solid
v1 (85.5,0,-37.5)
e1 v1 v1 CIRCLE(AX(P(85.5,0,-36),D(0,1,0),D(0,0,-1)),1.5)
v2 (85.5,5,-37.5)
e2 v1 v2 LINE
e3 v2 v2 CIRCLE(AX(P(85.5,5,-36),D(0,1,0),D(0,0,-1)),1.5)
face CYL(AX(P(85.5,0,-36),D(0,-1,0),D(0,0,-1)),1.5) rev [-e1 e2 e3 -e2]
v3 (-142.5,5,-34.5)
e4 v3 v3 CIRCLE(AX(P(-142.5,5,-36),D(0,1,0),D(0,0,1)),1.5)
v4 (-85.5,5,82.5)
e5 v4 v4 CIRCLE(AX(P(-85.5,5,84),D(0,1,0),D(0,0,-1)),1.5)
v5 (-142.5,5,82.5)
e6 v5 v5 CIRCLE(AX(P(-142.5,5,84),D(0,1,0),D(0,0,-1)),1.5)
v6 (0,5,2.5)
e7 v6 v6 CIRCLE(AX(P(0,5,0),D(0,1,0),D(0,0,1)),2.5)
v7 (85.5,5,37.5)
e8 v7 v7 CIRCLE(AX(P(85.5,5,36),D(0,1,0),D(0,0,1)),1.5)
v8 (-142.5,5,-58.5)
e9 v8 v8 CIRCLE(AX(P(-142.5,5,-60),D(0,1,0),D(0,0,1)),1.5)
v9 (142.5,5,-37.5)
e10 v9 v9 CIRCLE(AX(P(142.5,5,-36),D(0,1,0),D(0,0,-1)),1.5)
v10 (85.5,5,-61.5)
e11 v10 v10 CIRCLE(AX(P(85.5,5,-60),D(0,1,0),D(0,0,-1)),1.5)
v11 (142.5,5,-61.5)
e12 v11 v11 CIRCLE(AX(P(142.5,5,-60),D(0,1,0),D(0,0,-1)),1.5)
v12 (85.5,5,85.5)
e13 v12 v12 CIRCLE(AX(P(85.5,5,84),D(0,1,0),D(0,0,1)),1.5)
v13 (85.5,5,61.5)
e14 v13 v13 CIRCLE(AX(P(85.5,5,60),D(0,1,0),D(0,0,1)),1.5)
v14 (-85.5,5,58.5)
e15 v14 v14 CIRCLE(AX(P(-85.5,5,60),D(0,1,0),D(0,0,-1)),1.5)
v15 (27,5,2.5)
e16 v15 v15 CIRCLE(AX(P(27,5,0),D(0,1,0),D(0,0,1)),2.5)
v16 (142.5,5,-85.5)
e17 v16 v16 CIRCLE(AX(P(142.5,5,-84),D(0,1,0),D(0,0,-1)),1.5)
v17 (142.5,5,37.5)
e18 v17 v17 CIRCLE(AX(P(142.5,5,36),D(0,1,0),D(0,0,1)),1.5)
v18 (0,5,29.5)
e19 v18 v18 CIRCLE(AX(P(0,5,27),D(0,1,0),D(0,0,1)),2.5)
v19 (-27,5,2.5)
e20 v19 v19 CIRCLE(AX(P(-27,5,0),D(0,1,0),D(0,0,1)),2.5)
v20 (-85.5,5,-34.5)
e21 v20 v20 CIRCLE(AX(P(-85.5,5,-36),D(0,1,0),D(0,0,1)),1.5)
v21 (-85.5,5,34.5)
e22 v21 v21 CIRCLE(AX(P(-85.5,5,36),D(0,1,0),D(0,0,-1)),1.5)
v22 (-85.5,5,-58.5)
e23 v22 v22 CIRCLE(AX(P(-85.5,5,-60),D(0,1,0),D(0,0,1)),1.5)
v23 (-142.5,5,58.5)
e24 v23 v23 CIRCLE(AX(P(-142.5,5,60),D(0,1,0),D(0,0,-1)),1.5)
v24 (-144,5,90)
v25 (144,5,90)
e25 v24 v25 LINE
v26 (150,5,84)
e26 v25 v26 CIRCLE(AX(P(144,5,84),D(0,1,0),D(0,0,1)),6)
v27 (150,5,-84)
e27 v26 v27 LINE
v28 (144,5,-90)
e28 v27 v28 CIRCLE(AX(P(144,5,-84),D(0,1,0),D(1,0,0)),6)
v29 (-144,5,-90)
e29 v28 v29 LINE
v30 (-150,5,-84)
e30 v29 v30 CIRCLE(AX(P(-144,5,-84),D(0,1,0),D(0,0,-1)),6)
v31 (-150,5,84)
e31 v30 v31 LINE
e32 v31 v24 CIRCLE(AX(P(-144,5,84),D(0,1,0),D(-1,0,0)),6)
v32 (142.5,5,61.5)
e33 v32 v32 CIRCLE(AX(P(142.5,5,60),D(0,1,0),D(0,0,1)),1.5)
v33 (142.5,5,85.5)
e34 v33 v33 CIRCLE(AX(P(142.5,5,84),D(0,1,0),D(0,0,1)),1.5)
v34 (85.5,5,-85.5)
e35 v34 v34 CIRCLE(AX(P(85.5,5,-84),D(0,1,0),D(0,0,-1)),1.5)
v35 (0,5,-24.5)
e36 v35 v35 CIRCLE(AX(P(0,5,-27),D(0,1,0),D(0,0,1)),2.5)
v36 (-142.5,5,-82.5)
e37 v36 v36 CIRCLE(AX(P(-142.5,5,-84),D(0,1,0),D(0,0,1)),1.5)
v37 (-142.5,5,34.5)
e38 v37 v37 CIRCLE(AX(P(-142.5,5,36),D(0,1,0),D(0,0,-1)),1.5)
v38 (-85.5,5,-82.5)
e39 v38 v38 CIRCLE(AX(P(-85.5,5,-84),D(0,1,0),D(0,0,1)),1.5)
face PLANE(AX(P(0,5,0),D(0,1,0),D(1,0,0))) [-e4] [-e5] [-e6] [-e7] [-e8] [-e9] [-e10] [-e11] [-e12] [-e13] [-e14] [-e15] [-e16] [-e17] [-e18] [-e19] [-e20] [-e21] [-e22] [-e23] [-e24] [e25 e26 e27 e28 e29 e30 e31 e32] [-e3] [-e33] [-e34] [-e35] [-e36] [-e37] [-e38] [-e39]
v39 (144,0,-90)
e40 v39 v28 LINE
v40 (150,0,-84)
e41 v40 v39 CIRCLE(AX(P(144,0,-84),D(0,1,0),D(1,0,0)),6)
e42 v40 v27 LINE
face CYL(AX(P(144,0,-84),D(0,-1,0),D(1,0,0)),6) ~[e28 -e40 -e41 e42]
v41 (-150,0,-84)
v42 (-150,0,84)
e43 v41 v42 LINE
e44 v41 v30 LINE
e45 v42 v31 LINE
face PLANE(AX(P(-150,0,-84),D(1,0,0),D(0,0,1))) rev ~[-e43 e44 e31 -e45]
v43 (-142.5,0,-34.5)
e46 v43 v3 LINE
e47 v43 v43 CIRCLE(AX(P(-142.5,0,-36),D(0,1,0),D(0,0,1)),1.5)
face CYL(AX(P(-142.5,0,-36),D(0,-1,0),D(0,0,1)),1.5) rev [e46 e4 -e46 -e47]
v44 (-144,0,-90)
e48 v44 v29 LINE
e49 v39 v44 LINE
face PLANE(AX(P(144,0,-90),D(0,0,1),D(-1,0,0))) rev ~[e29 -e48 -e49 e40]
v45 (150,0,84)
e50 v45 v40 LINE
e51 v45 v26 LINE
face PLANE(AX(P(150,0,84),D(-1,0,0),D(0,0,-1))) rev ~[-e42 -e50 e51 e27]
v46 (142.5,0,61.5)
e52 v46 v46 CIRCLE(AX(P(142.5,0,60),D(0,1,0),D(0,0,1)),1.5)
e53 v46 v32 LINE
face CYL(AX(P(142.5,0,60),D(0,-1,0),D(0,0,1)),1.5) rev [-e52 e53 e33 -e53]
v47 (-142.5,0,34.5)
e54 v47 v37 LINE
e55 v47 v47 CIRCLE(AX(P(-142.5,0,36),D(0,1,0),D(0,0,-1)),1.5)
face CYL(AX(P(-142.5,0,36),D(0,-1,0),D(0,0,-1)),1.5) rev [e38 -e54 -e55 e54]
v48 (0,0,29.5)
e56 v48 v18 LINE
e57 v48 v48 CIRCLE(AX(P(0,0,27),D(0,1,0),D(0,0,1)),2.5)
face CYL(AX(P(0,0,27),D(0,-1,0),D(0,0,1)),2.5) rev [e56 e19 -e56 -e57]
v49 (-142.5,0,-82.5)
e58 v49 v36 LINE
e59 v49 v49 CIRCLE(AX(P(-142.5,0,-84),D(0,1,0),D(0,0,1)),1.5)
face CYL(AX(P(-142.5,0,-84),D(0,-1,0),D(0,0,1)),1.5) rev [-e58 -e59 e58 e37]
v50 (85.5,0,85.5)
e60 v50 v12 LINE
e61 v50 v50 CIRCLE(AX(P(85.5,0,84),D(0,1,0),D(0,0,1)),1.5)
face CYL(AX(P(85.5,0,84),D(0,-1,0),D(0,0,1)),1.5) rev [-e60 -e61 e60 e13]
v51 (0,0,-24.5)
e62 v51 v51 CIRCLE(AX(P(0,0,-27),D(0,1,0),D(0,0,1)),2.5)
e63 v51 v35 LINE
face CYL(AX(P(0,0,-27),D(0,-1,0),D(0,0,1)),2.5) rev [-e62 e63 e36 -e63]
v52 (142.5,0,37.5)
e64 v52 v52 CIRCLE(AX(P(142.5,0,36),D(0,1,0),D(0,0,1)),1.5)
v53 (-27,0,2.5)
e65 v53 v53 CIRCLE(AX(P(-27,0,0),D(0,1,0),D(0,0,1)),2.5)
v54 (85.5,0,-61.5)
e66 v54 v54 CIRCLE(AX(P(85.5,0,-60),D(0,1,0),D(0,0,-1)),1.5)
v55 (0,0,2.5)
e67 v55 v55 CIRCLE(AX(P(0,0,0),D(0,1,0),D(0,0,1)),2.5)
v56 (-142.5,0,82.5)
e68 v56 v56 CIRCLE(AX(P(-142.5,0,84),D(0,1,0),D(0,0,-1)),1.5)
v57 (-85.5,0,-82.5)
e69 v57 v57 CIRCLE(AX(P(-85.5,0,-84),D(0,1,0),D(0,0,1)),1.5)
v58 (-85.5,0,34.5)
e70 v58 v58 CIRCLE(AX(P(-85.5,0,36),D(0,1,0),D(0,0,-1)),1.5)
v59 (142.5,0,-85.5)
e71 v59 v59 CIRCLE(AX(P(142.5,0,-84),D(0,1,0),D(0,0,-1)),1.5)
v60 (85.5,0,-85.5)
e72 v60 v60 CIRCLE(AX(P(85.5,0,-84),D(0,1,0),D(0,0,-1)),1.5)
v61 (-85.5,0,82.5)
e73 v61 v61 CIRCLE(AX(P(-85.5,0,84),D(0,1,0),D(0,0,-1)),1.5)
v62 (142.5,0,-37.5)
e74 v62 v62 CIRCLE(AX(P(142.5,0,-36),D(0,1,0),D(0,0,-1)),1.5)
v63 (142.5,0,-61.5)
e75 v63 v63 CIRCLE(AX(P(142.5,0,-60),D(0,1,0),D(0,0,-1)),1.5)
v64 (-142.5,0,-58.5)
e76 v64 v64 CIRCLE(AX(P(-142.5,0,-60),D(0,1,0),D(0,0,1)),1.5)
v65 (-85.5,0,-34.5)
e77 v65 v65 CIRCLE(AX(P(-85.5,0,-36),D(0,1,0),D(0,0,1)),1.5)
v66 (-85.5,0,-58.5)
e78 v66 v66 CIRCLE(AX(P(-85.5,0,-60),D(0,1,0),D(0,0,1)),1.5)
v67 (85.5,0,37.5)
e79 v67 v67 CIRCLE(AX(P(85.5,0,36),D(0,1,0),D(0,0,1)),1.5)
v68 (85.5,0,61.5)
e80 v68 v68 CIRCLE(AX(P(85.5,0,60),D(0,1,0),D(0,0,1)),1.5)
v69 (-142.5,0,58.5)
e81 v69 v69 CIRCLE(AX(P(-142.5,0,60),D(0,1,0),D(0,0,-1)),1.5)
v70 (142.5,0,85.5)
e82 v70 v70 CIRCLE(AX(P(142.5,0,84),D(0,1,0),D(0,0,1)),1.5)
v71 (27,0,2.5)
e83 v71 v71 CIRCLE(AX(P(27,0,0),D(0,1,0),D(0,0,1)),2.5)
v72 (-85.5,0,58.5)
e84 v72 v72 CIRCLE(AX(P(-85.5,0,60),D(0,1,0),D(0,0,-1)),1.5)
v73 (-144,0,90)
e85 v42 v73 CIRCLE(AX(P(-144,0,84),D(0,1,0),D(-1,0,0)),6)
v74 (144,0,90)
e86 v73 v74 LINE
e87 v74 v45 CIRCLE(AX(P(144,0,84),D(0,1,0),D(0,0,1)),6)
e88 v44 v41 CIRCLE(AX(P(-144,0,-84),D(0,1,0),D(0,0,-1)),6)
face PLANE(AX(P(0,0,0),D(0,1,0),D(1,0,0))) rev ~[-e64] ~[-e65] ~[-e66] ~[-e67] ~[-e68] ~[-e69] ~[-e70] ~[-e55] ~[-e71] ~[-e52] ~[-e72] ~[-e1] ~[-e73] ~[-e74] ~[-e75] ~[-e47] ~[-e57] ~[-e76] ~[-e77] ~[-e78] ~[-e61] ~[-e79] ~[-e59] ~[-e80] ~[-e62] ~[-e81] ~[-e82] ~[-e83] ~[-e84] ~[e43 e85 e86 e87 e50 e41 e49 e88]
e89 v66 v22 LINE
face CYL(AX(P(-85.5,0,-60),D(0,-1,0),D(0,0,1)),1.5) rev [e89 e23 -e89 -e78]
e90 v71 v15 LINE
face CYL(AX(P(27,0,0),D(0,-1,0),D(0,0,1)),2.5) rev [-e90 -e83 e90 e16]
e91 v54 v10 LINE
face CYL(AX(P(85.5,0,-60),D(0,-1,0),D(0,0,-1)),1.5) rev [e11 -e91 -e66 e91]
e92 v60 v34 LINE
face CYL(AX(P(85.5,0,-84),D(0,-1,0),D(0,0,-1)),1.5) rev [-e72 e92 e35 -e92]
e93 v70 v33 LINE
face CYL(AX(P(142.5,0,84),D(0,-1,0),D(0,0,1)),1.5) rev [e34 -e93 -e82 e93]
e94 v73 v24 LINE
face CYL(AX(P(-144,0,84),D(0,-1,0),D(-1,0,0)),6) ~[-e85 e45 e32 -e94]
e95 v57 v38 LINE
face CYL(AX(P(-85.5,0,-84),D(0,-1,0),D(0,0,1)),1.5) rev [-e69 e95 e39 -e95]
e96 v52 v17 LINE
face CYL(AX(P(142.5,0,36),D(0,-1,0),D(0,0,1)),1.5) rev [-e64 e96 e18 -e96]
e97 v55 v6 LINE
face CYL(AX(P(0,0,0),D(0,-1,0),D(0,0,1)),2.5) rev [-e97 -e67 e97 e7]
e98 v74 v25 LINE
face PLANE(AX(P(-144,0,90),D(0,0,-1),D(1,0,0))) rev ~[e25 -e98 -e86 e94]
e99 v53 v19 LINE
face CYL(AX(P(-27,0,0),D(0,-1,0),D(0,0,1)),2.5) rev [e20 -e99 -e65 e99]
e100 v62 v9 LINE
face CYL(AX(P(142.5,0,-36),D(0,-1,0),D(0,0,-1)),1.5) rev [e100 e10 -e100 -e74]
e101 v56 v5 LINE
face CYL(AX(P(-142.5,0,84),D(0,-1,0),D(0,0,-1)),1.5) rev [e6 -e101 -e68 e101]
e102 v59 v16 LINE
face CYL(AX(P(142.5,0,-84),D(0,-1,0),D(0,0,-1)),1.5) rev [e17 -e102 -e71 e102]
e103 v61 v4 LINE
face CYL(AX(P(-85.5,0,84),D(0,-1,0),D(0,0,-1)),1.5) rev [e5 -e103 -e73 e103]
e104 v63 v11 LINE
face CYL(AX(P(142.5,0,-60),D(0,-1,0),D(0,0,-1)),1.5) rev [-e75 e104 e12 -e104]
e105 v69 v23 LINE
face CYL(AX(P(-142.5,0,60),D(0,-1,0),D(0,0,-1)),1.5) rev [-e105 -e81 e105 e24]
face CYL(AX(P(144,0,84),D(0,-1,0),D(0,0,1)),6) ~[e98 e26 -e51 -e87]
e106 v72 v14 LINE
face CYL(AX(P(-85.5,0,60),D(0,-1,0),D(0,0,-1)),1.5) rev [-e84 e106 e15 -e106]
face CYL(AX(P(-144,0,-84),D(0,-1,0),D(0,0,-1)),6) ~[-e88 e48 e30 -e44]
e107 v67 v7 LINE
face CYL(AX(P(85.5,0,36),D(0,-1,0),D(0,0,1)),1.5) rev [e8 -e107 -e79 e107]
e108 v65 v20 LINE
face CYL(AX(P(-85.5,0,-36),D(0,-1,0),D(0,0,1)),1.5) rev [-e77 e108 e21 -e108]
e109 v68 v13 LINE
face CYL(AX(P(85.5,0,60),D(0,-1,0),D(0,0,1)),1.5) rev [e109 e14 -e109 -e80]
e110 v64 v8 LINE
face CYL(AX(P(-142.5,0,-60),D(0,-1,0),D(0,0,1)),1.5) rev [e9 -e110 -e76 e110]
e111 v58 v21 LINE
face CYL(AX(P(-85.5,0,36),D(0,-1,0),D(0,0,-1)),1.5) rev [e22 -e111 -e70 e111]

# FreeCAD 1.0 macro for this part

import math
import FreeCAD as App
import Part
import Sketcher
Q = App.Units.Quantity

doc = App.newDocument("Part")
params = doc.addObject("Spreadsheet::Sheet", "Params")
for row, (alias, value) in enumerate([
    ("sketch1_diameter", "3 mm"),
    ("sketch1_diameter2", "5 mm"),
    ("sketch1_radius", "6 mm"),
    ("sketch1_width", "288 mm"),
    ("sketch1_height", "168 mm"),
    ("pad1_length", "5 mm"),
], start=1):
    params.set(f"A{row}", alias)
    params.set(f"B{row}", "=" + value)
    params.setAlias(f"B{row}", alias)

body = doc.addObject("PartDesign::Body", "Body")

sketch1 = body.newObject("Sketcher::SketchObject", "Sketch")
sketch1.AttachmentSupport = (doc.getObject("XZ_Plane"), [""])
sketch1.MapMode = "FlatFace"
sketch1.addGeometry([
    Part.LineSegment(App.Vector(-144, 90, 0), App.Vector(144, 90, 0)),
    Part.ArcOfCircle(Part.Circle(App.Vector(144, 84, 0), App.Vector(0, 0, 1), 6), math.radians(0), math.radians(90)),
    Part.LineSegment(App.Vector(150, 84, 0), App.Vector(150, -84, 0)),
    Part.ArcOfCircle(Part.Circle(App.Vector(144, -84, 0), App.Vector(0, 0, 1), 6), math.radians(-90), math.radians(0)),
    Part.LineSegment(App.Vector(144, -90, 0), App.Vector(-144, -90, 0)),
    Part.ArcOfCircle(Part.Circle(App.Vector(-144, -84, 0), App.Vector(0, 0, 1), 6), math.radians(180), math.radians(270)),
    Part.LineSegment(App.Vector(-150, -84, 0), App.Vector(-150, 84, 0)),
    Part.ArcOfCircle(Part.Circle(App.Vector(-144, 84, 0), App.Vector(0, 0, 1), 6), math.radians(90), math.radians(180)),
    Part.Circle(App.Vector(-142.5, 84, 0), App.Vector(0, 0, 1), 1.5),
    Part.Circle(App.Vector(-85.5, 84, 0), App.Vector(0, 0, 1), 1.5),
    Part.Circle(App.Vector(-142.5, 60, 0), App.Vector(0, 0, 1), 1.5),
    Part.Circle(App.Vector(-85.5, 60, 0), App.Vector(0, 0, 1), 1.5),
    Part.Circle(App.Vector(-142.5, 36, 0), App.Vector(0, 0, 1), 1.5),
    Part.Circle(App.Vector(-85.5, 36, 0), App.Vector(0, 0, 1), 1.5),
    Part.Circle(App.Vector(85.5, 84, 0), App.Vector(0, 0, 1), 1.5),
    Part.Circle(App.Vector(142.5, 84, 0), App.Vector(0, 0, 1), 1.5),
    Part.Circle(App.Vector(85.5, 60, 0), App.Vector(0, 0, 1), 1.5),
    Part.Circle(App.Vector(142.5, 60, 0), App.Vector(0, 0, 1), 1.5),
    Part.Circle(App.Vector(0, 27, 0), App.Vector(0, 0, 1), 2.5),
    Part.Circle(App.Vector(85.5, 36, 0), App.Vector(0, 0, 1), 1.5),
    Part.Circle(App.Vector(142.5, 36, 0), App.Vector(0, 0, 1), 1.5),
    Part.Circle(App.Vector(-142.5, -36, 0), App.Vector(0, 0, 1), 1.5),
    Part.Circle(App.Vector(-85.5, -36, 0), App.Vector(0, 0, 1), 1.5),
    Part.Circle(App.Vector(-27, 0, 0), App.Vector(0, 0, 1), 2.5),
    Part.Circle(App.Vector(-142.5, -60, 0), App.Vector(0, 0, 1), 1.5),
    Part.Circle(App.Vector(-85.5, -60, 0), App.Vector(0, 0, 1), 1.5),
    Part.Circle(App.Vector(-142.5, -84, 0), App.Vector(0, 0, 1), 1.5),
    Part.Circle(App.Vector(-85.5, -84, 0), App.Vector(0, 0, 1), 1.5),
    Part.Circle(App.Vector(0, 0, 0), App.Vector(0, 0, 1), 2.5),
    Part.Circle(App.Vector(27, 0, 0), App.Vector(0, 0, 1), 2.5),
    Part.Circle(App.Vector(0, -27, 0), App.Vector(0, 0, 1), 2.5),
    Part.Circle(App.Vector(85.5, -36, 0), App.Vector(0, 0, 1), 1.5),
    Part.Circle(App.Vector(142.5, -36, 0), App.Vector(0, 0, 1), 1.5),
    Part.Circle(App.Vector(85.5, -60, 0), App.Vector(0, 0, 1), 1.5),
    Part.Circle(App.Vector(142.5, -60, 0), App.Vector(0, 0, 1), 1.5),
    Part.Circle(App.Vector(85.5, -84, 0), App.Vector(0, 0, 1), 1.5),
    Part.Circle(App.Vector(142.5, -84, 0), App.Vector(0, 0, 1), 1.5),
], False)
sketch1.addConstraint([
    Sketcher.Constraint("Tangent", 0, 2, 1, 2),
    Sketcher.Constraint("Tangent", 1, 1, 2, 1),
    Sketcher.Constraint("Tangent", 2, 2, 3, 2),
    Sketcher.Constraint("Tangent", 3, 1, 4, 1),
    Sketcher.Constraint("Tangent", 4, 2, 5, 2),
    Sketcher.Constraint("Tangent", 5, 1, 6, 1),
    Sketcher.Constraint("Tangent", 6, 2, 7, 2),
    Sketcher.Constraint("Tangent", 7, 1, 0, 1),
    Sketcher.Constraint("Horizontal", 0),
    Sketcher.Constraint("Vertical", 2),
    Sketcher.Constraint("Horizontal", 4),
    Sketcher.Constraint("Vertical", 6),
    Sketcher.Constraint("Coincident", 28, 3, -1, 1),
    Sketcher.Constraint("Equal", 1, 3),
    Sketcher.Constraint("Equal", 3, 5),
    Sketcher.Constraint("Equal", 5, 7),
    Sketcher.Constraint("Equal", 8, 9),
    Sketcher.Constraint("Equal", 9, 10),
    Sketcher.Constraint("Equal", 10, 11),
    Sketcher.Constraint("Equal", 11, 12),
    Sketcher.Constraint("Equal", 12, 13),
    Sketcher.Constraint("Equal", 13, 14),
    Sketcher.Constraint("Equal", 14, 15),
    Sketcher.Constraint("Equal", 15, 16),
    Sketcher.Constraint("Equal", 16, 17),
    Sketcher.Constraint("Equal", 17, 19),
    Sketcher.Constraint("Equal", 19, 20),
    Sketcher.Constraint("Equal", 20, 21),
    Sketcher.Constraint("Equal", 21, 22),
    Sketcher.Constraint("Equal", 18, 23),
    Sketcher.Constraint("Equal", 22, 24),
    Sketcher.Constraint("Equal", 24, 25),
    Sketcher.Constraint("Equal", 25, 26),
    Sketcher.Constraint("Equal", 26, 27),
    Sketcher.Constraint("Equal", 23, 28),
    Sketcher.Constraint("Equal", 28, 29),
    Sketcher.Constraint("Equal", 29, 30),
    Sketcher.Constraint("Equal", 27, 31),
    Sketcher.Constraint("Equal", 31, 32),
    Sketcher.Constraint("Equal", 32, 33),
    Sketcher.Constraint("Equal", 33, 34),
    Sketcher.Constraint("Equal", 34, 35),
    Sketcher.Constraint("Equal", 35, 36),
    Sketcher.Constraint("Symmetric", 1, 3, 5, 3, -1, 1),
    Sketcher.Constraint("Symmetric", 20, 3, 21, 3, -1, 1),
    Sketcher.Constraint("Symmetric", 19, 3, 22, 3, -1, 1),
    Sketcher.Constraint("Symmetric", 17, 3, 24, 3, -1, 1),
    Sketcher.Constraint("Symmetric", 16, 3, 25, 3, -1, 1),
    Sketcher.Constraint("Symmetric", 15, 3, 26, 3, -1, 1),
    Sketcher.Constraint("Symmetric", 14, 3, 27, 3, -1, 1),
    Sketcher.Constraint("Symmetric", 23, 3, 29, 3, -1, 1),
    Sketcher.Constraint("Symmetric", 18, 3, 30, 3, -1, 1),
    Sketcher.Constraint("Symmetric", 13, 3, 31, 3, -1, 1),
    Sketcher.Constraint("Symmetric", 12, 3, 32, 3, -1, 1),
    Sketcher.Constraint("Symmetric", 11, 3, 33, 3, -1, 1),
    Sketcher.Constraint("Symmetric", 10, 3, 34, 3, -1, 1),
    Sketcher.Constraint("Symmetric", 9, 3, 35, 3, -1, 1),
    Sketcher.Constraint("Symmetric", 8, 3, 36, 3, -1, 1),
    Sketcher.Constraint("Symmetric", 9, 3, 14, 3, -2),
    Sketcher.Constraint("Symmetric", 8, 3, 15, 3, -2),
    Sketcher.Constraint("Symmetric", 11, 3, 16, 3, -2),
    Sketcher.Constraint("Symmetric", 10, 3, 17, 3, -2),
    Sketcher.Constraint("Symmetric", 13, 3, 19, 3, -2),
    Sketcher.Constraint("Symmetric", 12, 3, 20, 3, -2),
    Sketcher.Constraint("PointOnObject", 18, 3, -2),
    Sketcher.Constraint("PointOnObject", 23, 3, -1),
    Sketcher.Constraint("Horizontal", 7, 3, 8, 3),
    Sketcher.Constraint("Horizontal", 8, 3, 9, 3),
    Sketcher.Constraint("Horizontal", 10, 3, 11, 3),
    Sketcher.Constraint("Horizontal", 12, 3, 13, 3),
    Sketcher.Constraint("Vertical", 8, 3, 10, 3),
    Sketcher.Constraint("Vertical", 9, 3, 11, 3),
    Sketcher.Constraint("Vertical", 10, 3, 12, 3),
    Sketcher.Constraint("Vertical", 11, 3, 13, 3),
    Sketcher.Constraint("Diameter", 8, Q("3 mm")),
    Sketcher.Constraint("Diameter", 18, Q("5 mm")),
    Sketcher.Constraint("Radius", 1, Q("6 mm")),
    Sketcher.Constraint("DistanceX", 0, 1, 0, 2, Q("288 mm")),
    Sketcher.Constraint("DistanceY", 2, 2, 2, 1, Q("168 mm")),
    Sketcher.Constraint("DistanceY", -1, 1, 10, 3, Q("60 mm")),
    Sketcher.Constraint("DistanceY", -1, 1, 12, 3, Q("36 mm")),
    Sketcher.Constraint("DistanceY", -1, 1, 18, 3, Q("27 mm")),
    Sketcher.Constraint("DistanceX", 23, 3, -1, 1, Q("27 mm")),
    Sketcher.Constraint("DistanceX", 8, 3, 9, 3, Q("57 mm")),
    Sketcher.Constraint("DistanceX", 9, 3, 14, 3, Q("171 mm")),
])
sketch1.setExpression("Constraints[74]", "Params.sketch1_diameter")
sketch1.setExpression("Constraints[75]", "Params.sketch1_diameter2")
sketch1.setExpression("Constraints[76]", "Params.sketch1_radius")
sketch1.setExpression("Constraints[77]", "Params.sketch1_width")
sketch1.setExpression("Constraints[78]", "Params.sketch1_height")
pad1 = body.newObject("PartDesign::Pad", "Pad")
pad1.Profile = sketch1
pad1.setExpression("Length", "Params.pad1_length")
pad1.Reversed = True

doc.recompute()
